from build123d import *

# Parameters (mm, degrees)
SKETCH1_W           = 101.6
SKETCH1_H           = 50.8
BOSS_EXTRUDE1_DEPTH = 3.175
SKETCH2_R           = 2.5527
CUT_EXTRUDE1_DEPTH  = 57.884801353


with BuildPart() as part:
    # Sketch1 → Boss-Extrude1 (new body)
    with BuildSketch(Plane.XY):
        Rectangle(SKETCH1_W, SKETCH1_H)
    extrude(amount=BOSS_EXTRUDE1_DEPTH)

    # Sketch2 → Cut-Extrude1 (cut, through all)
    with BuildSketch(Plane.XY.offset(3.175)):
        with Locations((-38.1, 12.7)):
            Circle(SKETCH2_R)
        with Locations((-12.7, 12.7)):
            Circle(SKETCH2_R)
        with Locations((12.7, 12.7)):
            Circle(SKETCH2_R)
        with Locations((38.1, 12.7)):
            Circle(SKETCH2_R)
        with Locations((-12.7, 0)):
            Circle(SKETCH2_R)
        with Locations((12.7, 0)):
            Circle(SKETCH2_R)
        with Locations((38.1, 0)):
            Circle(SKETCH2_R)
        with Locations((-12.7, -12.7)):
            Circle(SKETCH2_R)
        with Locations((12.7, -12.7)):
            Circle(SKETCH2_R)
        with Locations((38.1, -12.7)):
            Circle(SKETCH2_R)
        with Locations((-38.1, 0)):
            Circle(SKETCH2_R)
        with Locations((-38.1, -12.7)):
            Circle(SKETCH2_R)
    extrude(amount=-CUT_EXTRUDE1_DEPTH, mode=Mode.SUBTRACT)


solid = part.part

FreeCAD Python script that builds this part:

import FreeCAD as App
import Part
import Sketcher
from FreeCAD import Vector
Q = App.Units.Quantity

doc = App.newDocument("Part")
params = doc.addObject("Spreadsheet::Sheet", "Params")
for row, (alias, value) in enumerate([
    ("sketch1_width", "4 in"),
    ("sketch1_height", "2 in"),
    ("pad1_length", "0.125 in"),
    ("sketch2_diameter", "0.201 in"),
], start=1):
    params.set(f"A{row}", alias)
    params.set(f"B{row}", "=" + value)
    params.setAlias(f"B{row}", alias)

body = doc.addObject("PartDesign::Body", "Body")

sketch1 = body.newObject("Sketcher::SketchObject", "Sketch")
sketch1.AttachmentSupport = (doc.getObject("XY_Plane"), [""])
sketch1.MapMode = "FlatFace"
sketch1.addGeometry(Part.LineSegment(Vector(-50.8, 25.4, 0), Vector(-50.8, -25.4, 0)), False)
sketch1.addGeometry(Part.LineSegment(Vector(-50.8, -25.4, 0), Vector(50.8, -25.4, 0)), False)
sketch1.addGeometry(Part.LineSegment(Vector(50.8, -25.4, 0), Vector(50.8, 25.4, 0)), False)
sketch1.addGeometry(Part.LineSegment(Vector(50.8, 25.4, 0), Vector(-50.8, 25.4, 0)), False)
sketch1.addConstraint(Sketcher.Constraint("Coincident", 0, 2, 1, 1))
sketch1.addConstraint(Sketcher.Constraint("Coincident", 1, 2, 2, 1))
sketch1.addConstraint(Sketcher.Constraint("Coincident", 2, 2, 3, 1))
sketch1.addConstraint(Sketcher.Constraint("Coincident", 3, 2, 0, 1))
sketch1.addConstraint(Sketcher.Constraint("Vertical", 0))
sketch1.addConstraint(Sketcher.Constraint("Horizontal", 1))
sketch1.addConstraint(Sketcher.Constraint("Vertical", 2))
sketch1.addConstraint(Sketcher.Constraint("Horizontal", 3))
sketch1.addConstraint(Sketcher.Constraint("Symmetric", 0, 2, 2, 2, -1, 1))
sketch1.addConstraint(Sketcher.Constraint("DistanceX", 1, 1, 1, 2, Q("4 in")))
sketch1.addConstraint(Sketcher.Constraint("DistanceY", 0, 2, 0, 1, Q("2 in")))
sketch1.setExpression("Constraints[9]", "Params.sketch1_width")
sketch1.setExpression("Constraints[10]", "Params.sketch1_height")
pad1 = body.newObject("PartDesign::Pad", "Pad")
pad1.Profile = sketch1
pad1.setExpression("Length", "Params.pad1_length")

sketch2 = body.newObject("Sketcher::SketchObject", "Sketch001")
sketch2.AttachmentSupport = (doc.getObject("XY_Plane"), [""])
sketch2.MapMode = "FlatFace"
sketch2.AttachmentOffset = App.Placement(Vector(0, 0, 0.125 * 25.4), App.Rotation())
sketch2.addGeometry(Part.Circle(Vector(-38.1, 12.7, 0), Vector(0, 0, 1), 2.5527), False)
sketch2.addGeometry(Part.Circle(Vector(-12.7, 12.7, 0), Vector(0, 0, 1), 2.5527), False)
sketch2.addGeometry(Part.Circle(Vector(12.7, 12.7, 0), Vector(0, 0, 1), 2.5527), False)
sketch2.addGeometry(Part.Circle(Vector(38.1, 12.7, 0), Vector(0, 0, 1), 2.5527), False)
sketch2.addGeometry(Part.Circle(Vector(-12.7, 0, 0), Vector(0, 0, 1), 2.5527), False)
sketch2.addGeometry(Part.Circle(Vector(12.7, 0, 0), Vector(0, 0, 1), 2.5527), False)
sketch2.addGeometry(Part.Circle(Vector(38.1, 0, 0), Vector(0, 0, 1), 2.5527), False)
sketch2.addGeometry(Part.Circle(Vector(-12.7, -12.7, 0), Vector(0, 0, 1), 2.5527), False)
sketch2.addGeometry(Part.Circle(Vector(12.7, -12.7, 0), Vector(0, 0, 1), 2.5527), False)
sketch2.addGeometry(Part.Circle(Vector(38.1, -12.7, 0), Vector(0, 0, 1), 2.5527), False)
sketch2.addGeometry(Part.Circle(Vector(-38.1, 0, 0), Vector(0, 0, 1), 2.5527), False)
sketch2.addGeometry(Part.Circle(Vector(-38.1, -12.7, 0), Vector(0, 0, 1), 2.5527), False)
sketch2.addConstraint(Sketcher.Constraint("Equal", 0, 1))
sketch2.addConstraint(Sketcher.Constraint("Equal", 1, 2))
sketch2.addConstraint(Sketcher.Constraint("Equal", 2, 3))
sketch2.addConstraint(Sketcher.Constraint("Equal", 3, 4))
sketch2.addConstraint(Sketcher.Constraint("Equal", 4, 5))
sketch2.addConstraint(Sketcher.Constraint("Equal", 5, 6))
sketch2.addConstraint(Sketcher.Constraint("Equal", 6, 7))
sketch2.addConstraint(Sketcher.Constraint("Equal", 7, 8))
sketch2.addConstraint(Sketcher.Constraint("Equal", 8, 9))
sketch2.addConstraint(Sketcher.Constraint("Equal", 9, 10))
sketch2.addConstraint(Sketcher.Constraint("Equal", 10, 11))
sketch2.addConstraint(Sketcher.Constraint("Symmetric", 4, 3, 5, 3, -1, 1))
sketch2.addConstraint(Sketcher.Constraint("Symmetric", 2, 3, 7, 3, -1, 1))
sketch2.addConstraint(Sketcher.Constraint("Symmetric", 1, 3, 8, 3, -1, 1))
sketch2.addConstraint(Sketcher.Constraint("Symmetric", 0, 3, 9, 3, -1, 1))
sketch2.addConstraint(Sketcher.Constraint("Symmetric", 6, 3, 10, 3, -1, 1))
sketch2.addConstraint(Sketcher.Constraint("Symmetric", 3, 3, 11, 3, -1, 1))
sketch2.addConstraint(Sketcher.Constraint("Symmetric", 1, 3, 2, 3, -2))
sketch2.addConstraint(Sketcher.Constraint("Symmetric", 0, 3, 3, 3, -2))
sketch2.addConstraint(Sketcher.Constraint("PointOnObject", 4, 3, -1))
sketch2.addConstraint(Sketcher.Constraint("PointOnObject", 6, 3, -1))
sketch2.addConstraint(Sketcher.Constraint("Horizontal", 0, 3, 1, 3))
sketch2.addConstraint(Sketcher.Constraint("Vertical", 1, 3, 4, 3))
sketch2.addConstraint(Sketcher.Constraint("Vertical", 3, 3, 6, 3))
sketch2.addConstraint(Sketcher.Constraint("Diameter", 0, Q("0.201 in")))
sketch2.addConstraint(Sketcher.Constraint("DistanceX", 0, 3, 1, 3, Q("1 in")))
sketch2.addConstraint(Sketcher.Constraint("DistanceX", 1, 3, 2, 3, Q("1 in")))
sketch2.addConstraint(Sketcher.Constraint("DistanceY", 7, 3, 1, 3, Q("1 in")))
sketch2.setExpression("Constraints[24]", "Params.sketch2_diameter")
pocket1 = body.newObject("PartDesign::Pocket", "Pocket")
pocket1.Profile = sketch2
pocket1.Type = "ThroughAll"

doc.recompute()
